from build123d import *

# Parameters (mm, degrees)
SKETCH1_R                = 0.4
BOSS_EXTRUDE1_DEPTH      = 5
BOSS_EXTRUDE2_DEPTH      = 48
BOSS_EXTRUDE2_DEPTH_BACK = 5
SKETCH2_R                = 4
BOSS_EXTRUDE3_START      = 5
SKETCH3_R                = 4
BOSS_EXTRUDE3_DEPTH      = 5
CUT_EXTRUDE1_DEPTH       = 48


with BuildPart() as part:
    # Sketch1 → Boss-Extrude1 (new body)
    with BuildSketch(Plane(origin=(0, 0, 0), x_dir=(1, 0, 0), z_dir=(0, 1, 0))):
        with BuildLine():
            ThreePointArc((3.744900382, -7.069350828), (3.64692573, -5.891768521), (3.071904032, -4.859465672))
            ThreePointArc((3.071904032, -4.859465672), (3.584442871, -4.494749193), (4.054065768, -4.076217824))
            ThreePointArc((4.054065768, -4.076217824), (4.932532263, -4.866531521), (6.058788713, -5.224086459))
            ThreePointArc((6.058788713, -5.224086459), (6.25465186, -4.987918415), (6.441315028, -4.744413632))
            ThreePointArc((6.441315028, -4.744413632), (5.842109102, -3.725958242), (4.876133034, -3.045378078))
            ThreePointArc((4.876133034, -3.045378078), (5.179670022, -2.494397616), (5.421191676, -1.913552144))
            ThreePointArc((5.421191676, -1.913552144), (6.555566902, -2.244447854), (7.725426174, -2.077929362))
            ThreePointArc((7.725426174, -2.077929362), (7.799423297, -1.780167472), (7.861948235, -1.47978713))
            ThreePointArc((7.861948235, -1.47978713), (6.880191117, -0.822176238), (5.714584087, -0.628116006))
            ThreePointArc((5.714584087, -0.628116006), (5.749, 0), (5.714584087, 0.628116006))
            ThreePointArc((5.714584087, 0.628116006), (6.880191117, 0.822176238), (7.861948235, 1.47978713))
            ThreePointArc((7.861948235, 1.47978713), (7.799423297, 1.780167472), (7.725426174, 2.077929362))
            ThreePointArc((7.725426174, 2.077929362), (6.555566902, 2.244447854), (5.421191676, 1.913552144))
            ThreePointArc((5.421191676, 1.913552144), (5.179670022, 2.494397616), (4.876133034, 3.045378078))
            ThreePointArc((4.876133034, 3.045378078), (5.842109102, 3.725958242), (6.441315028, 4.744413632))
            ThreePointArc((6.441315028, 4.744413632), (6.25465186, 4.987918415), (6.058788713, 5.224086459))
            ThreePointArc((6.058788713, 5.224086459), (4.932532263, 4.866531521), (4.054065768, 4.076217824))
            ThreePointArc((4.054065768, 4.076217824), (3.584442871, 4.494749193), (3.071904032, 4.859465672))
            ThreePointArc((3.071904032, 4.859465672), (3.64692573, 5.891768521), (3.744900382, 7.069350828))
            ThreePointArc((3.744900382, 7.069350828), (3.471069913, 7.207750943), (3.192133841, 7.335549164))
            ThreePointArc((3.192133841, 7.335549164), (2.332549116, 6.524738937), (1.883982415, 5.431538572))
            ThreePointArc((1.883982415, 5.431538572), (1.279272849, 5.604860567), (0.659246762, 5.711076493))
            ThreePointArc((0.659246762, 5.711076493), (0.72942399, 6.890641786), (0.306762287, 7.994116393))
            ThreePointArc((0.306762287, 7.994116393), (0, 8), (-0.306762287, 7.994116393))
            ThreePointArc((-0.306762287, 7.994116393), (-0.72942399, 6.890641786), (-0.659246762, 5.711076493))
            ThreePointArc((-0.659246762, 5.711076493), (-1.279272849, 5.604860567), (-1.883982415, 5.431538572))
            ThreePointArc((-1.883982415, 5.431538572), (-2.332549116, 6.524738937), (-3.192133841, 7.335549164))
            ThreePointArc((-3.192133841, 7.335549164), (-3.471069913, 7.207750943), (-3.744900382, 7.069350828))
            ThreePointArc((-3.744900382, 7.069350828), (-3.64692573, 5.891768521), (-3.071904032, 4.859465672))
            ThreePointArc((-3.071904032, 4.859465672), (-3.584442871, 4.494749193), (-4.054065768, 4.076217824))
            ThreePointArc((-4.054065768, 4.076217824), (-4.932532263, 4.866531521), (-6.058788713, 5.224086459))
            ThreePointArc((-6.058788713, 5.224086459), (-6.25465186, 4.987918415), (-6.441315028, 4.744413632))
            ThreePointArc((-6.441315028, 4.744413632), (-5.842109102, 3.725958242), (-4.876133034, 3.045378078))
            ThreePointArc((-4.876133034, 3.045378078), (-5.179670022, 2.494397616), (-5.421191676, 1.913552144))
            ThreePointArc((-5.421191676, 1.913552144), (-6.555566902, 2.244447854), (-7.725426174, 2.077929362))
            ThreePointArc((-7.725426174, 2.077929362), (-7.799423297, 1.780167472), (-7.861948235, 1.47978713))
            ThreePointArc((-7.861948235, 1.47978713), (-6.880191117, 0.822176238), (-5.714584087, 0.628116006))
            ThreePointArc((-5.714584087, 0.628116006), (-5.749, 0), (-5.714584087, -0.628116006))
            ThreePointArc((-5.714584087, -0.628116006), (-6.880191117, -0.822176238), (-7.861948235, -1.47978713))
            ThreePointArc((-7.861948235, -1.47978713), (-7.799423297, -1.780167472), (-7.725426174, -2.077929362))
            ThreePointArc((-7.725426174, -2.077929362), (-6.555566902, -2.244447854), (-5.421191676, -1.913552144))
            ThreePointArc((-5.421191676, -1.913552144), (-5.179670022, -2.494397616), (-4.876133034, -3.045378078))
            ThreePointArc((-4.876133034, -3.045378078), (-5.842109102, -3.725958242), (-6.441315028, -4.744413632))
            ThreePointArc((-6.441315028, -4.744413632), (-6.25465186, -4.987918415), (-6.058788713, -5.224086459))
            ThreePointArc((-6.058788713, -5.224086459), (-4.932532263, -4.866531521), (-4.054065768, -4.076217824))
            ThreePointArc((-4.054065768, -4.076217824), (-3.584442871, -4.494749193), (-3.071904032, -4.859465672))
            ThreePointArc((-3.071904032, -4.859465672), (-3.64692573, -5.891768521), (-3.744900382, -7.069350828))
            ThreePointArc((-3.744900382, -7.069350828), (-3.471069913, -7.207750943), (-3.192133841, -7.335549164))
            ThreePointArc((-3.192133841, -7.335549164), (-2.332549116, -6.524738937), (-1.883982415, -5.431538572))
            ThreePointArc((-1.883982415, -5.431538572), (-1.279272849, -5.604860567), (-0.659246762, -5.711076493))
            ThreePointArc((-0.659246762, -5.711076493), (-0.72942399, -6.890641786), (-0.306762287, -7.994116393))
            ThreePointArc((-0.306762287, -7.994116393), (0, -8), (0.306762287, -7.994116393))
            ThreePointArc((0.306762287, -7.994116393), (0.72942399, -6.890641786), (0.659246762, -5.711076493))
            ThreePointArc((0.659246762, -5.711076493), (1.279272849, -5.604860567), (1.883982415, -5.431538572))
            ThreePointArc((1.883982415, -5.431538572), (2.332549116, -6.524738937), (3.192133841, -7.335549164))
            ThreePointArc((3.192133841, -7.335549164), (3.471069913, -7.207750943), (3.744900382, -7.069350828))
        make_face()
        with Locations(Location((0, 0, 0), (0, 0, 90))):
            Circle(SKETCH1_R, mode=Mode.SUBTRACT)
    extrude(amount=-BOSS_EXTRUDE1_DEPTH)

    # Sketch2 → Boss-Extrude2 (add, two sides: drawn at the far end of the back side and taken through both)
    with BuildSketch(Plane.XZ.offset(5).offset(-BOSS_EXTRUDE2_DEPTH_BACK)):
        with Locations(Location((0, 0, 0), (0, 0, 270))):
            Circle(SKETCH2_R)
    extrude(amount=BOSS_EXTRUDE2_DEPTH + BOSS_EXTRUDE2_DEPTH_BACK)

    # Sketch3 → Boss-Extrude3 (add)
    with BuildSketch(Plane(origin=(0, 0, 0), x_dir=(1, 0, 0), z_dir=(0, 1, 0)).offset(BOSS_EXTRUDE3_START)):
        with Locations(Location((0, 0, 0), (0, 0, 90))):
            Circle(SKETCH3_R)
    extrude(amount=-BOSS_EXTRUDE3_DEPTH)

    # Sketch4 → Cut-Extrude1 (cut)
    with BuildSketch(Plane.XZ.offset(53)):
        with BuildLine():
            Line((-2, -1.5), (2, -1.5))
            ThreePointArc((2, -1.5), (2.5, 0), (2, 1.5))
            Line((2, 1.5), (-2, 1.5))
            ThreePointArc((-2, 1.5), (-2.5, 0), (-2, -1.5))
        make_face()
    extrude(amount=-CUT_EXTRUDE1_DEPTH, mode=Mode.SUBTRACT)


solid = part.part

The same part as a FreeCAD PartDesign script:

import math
import FreeCAD as App
import Part
import Sketcher

doc = App.newDocument("Part")
params = doc.addObject("Spreadsheet::Sheet", "Params")
for row, (alias, value) in enumerate([
    ("sketch1_radius", "8 mm"),
    ("sketch1_diameter", "0.8 mm"),
    ("sketch1_radius2", "2.8 mm"),
    ("pad1_length", "5 mm"),
    ("sketch2_diameter", "8 mm"),
    ("pad2_length", "48 mm"),
    ("pad2_length2", "5 mm"),
    ("sketch3_diameter", "8 mm"),
    ("pad3_length", "5 mm"),
    ("sketch4_radius", "2.5 mm"),
    ("sketch4_width", "4 mm"),
    ("pocket1_length", "48 mm"),
], start=1):
    params.set(f"A{row}", alias)
    params.set(f"B{row}", "=" + value)
    params.setAlias(f"B{row}", alias)

body = doc.addObject("PartDesign::Body", "Body")

# Sketch on XZ plane
sketch1 = doc.addObject("Sketcher::SketchObject", "Sketch")
body.addObject(sketch1)
sketch1.AttachmentSupport = (doc.XZ_Plane, [""])
sketch1.MapMode = "FlatFace"
sketch1.addGeometry([
    Part.ArcOfCircle(Part.Circle(App.Vector(0.97, 6.71, 0), App.Vector(0, 0, 1), 2.8), math.radians(-41), math.radians(7)),  # 0
    Part.ArcOfCircle(Part.Circle(App.Vector(0, 0, 0), App.Vector(0, 0, 1), 5.75), math.radians(45.16), math.radians(57.7)),  # 1
    Part.ArcOfCircle(Part.Circle(App.Vector(6.32, 2.44, 0), App.Vector(0, 0, 1), 2.8), math.radians(95), math.radians(144)),  # 2
    Part.ArcOfCircle(Part.Circle(App.Vector(0, 0, 0), App.Vector(0, 0, 1), 8), math.radians(36.37), math.radians(40.77)),  # 3
    Part.ArcOfCircle(Part.Circle(App.Vector(3.78, 5.62, 0), App.Vector(0, 0, 1), 2.8), math.radians(-67), math.radians(-18)),  # 4
    Part.ArcOfCircle(Part.Circle(App.Vector(0, 0, 0), App.Vector(0, 0, 1), 5.75), math.radians(19.44), math.radians(31.99)),  # 5
    Part.ArcOfCircle(Part.Circle(App.Vector(6.75, -0.55, 0), App.Vector(0, 0, 1), 2.8), math.radians(70), math.radians(118)),  # 6
    Part.ArcOfCircle(Part.Circle(App.Vector(0, 0, 0), App.Vector(0, 0, 1), 8), math.radians(10.66), math.radians(15.05)),  # 7
    Part.ArcOfCircle(Part.Circle(App.Vector(5.85, 3.42, 0), App.Vector(0, 0, 1), 2.8), math.radians(-93), math.radians(-44)),  # 8
    Part.ArcOfCircle(Part.Circle(App.Vector(0, 0, 0), App.Vector(0, 0, 1), 5.75), math.radians(-6.27), math.radians(6.27)),  # 9
    Part.ArcOfCircle(Part.Circle(App.Vector(5.85, -3.42, 0), App.Vector(0, 0, 1), 2.8), math.radians(44), math.radians(93)),  # 10
    Part.ArcOfCircle(Part.Circle(App.Vector(0, 0, 0), App.Vector(0, 0, 1), 8), math.radians(-15.05), math.radians(-10.66)),  # 11
    Part.ArcOfCircle(Part.Circle(App.Vector(6.75, 0.55, 0), App.Vector(0, 0, 1), 2.8), math.radians(-118), math.radians(-70)),  # 12
    Part.ArcOfCircle(Part.Circle(App.Vector(0, 0, 0), App.Vector(0, 0, 1), 5.75), math.radians(-31.99), math.radians(-19.44)),  # 13
    Part.ArcOfCircle(Part.Circle(App.Vector(3.78, -5.62, 0), App.Vector(0, 0, 1), 2.8), math.radians(18), math.radians(67)),  # 14
    Part.ArcOfCircle(Part.Circle(App.Vector(0, 0, 0), App.Vector(0, 0, 1), 8), math.radians(-40.77), math.radians(-36.37)),  # 15
    Part.ArcOfCircle(Part.Circle(App.Vector(6.32, -2.44, 0), App.Vector(0, 0, 1), 2.8), math.radians(-144), math.radians(-95)),  # 16
    Part.ArcOfCircle(Part.Circle(App.Vector(0, 0, 0), App.Vector(0, 0, 1), 5.75), math.radians(-57.7), math.radians(-45.16)),  # 17
    Part.ArcOfCircle(Part.Circle(App.Vector(0.97, -6.71, 0), App.Vector(0, 0, 1), 2.8), math.radians(-7), math.radians(41)),  # 18
    Part.ArcOfCircle(Part.Circle(App.Vector(0, 0, 0), App.Vector(0, 0, 1), 8), math.radians(-66.48), math.radians(-62.09)),  # 19
    Part.ArcOfCircle(Part.Circle(App.Vector(4.64, -4.94, 0), App.Vector(0, 0, 1), 2.8), math.radians(-170), math.radians(-121)),  # 20
    Part.ArcOfCircle(Part.Circle(App.Vector(0, 0, 0), App.Vector(0, 0, 1), 5.75), math.radians(-83.42), math.radians(-70.87)),  # 21
    Part.ArcOfCircle(Part.Circle(App.Vector(-2.04, -6.46, 0), App.Vector(0, 0, 1), 2.8), math.radians(-33), math.radians(16)),  # 22
    Part.ArcOfCircle(Part.Circle(App.Vector(0, 0, 0), App.Vector(0, 0, 1), 8), math.radians(-92.2), math.radians(-87.8)),  # 23
    Part.ArcOfCircle(Part.Circle(App.Vector(2.04, -6.46, 0), App.Vector(0, 0, 1), 2.8), math.radians(164), math.radians(213)),  # 24
    Part.ArcOfCircle(Part.Circle(App.Vector(0, 0, 0), App.Vector(0, 0, 1), 5.75), math.radians(-109.13), math.radians(-96.58)),  # 25
    Part.ArcOfCircle(Part.Circle(App.Vector(-4.64, -4.94, 0), App.Vector(0, 0, 1), 2.8), math.radians(-59), math.radians(-10)),  # 26
    Part.ArcOfCircle(Part.Circle(App.Vector(0, 0, 0), App.Vector(0, 0, 1), 8), math.radians(-117.91), math.radians(-113.52)),  # 27
    Part.ArcOfCircle(Part.Circle(App.Vector(-0.97, -6.71, 0), App.Vector(0, 0, 1), 2.8), math.radians(139), math.radians(187)),  # 28
    Part.ArcOfCircle(Part.Circle(App.Vector(0, 0, 0), App.Vector(0, 0, 1), 5.75), math.radians(-134.84), math.radians(-122.3)),  # 29
    Part.ArcOfCircle(Part.Circle(App.Vector(-6.32, -2.44, 0), App.Vector(0, 0, 1), 2.8), math.radians(-85), math.radians(-36)),  # 30
    Part.ArcOfCircle(Part.Circle(App.Vector(0, 0, 0), App.Vector(0, 0, 1), 8), math.radians(-143.63), math.radians(-139.23)),  # 31
    Part.ArcOfCircle(Part.Circle(App.Vector(-3.78, -5.62, 0), App.Vector(0, 0, 1), 2.8), math.radians(113), math.radians(162)),  # 32
    Part.ArcOfCircle(Part.Circle(App.Vector(0, 0, 0), App.Vector(0, 0, 1), 5.75), math.radians(-160.56), math.radians(-148.01)),  # 33
    Part.ArcOfCircle(Part.Circle(App.Vector(-6.75, 0.55, 0), App.Vector(0, 0, 1), 2.8), math.radians(-110), math.radians(-62)),  # 34
    Part.ArcOfCircle(Part.Circle(App.Vector(0, 0, 0), App.Vector(0, 0, 1), 8), math.radians(-169.34), math.radians(-164.95)),  # 35
    Part.ArcOfCircle(Part.Circle(App.Vector(-5.85, -3.42, 0), App.Vector(0, 0, 1), 2.8), math.radians(87), math.radians(136)),  # 36
    Part.ArcOfCircle(Part.Circle(App.Vector(0, 0, 0), App.Vector(0, 0, 1), 5.75), math.radians(173.73), math.radians(186.27)),  # 37
    Part.ArcOfCircle(Part.Circle(App.Vector(-5.85, 3.42, 0), App.Vector(0, 0, 1), 2.8), math.radians(-136), math.radians(-87)),  # 38
    Part.ArcOfCircle(Part.Circle(App.Vector(0, 0, 0), App.Vector(0, 0, 1), 8), math.radians(164.95), math.radians(169.34)),  # 39
    Part.ArcOfCircle(Part.Circle(App.Vector(-6.75, -0.55, 0), App.Vector(0, 0, 1), 2.8), math.radians(62), math.radians(110)),  # 40
    Part.ArcOfCircle(Part.Circle(App.Vector(0, 0, 0), App.Vector(0, 0, 1), 5.75), math.radians(148.01), math.radians(160.56)),  # 41
    Part.ArcOfCircle(Part.Circle(App.Vector(-3.78, 5.62, 0), App.Vector(0, 0, 1), 2.8), math.radians(-162), math.radians(-113)),  # 42
    Part.ArcOfCircle(Part.Circle(App.Vector(0, 0, 0), App.Vector(0, 0, 1), 8), math.radians(139.23), math.radians(143.63)),  # 43
    Part.ArcOfCircle(Part.Circle(App.Vector(-6.32, 2.44, 0), App.Vector(0, 0, 1), 2.8), math.radians(36), math.radians(85)),  # 44
    Part.ArcOfCircle(Part.Circle(App.Vector(0, 0, 0), App.Vector(0, 0, 1), 5.75), math.radians(122.3), math.radians(134.84)),  # 45
    Part.ArcOfCircle(Part.Circle(App.Vector(-0.97, 6.71, 0), App.Vector(0, 0, 1), 2.8), math.radians(173), math.radians(221)),  # 46
    Part.ArcOfCircle(Part.Circle(App.Vector(0, 0, 0), App.Vector(0, 0, 1), 8), math.radians(113.52), math.radians(117.91)),  # 47
    Part.ArcOfCircle(Part.Circle(App.Vector(-4.64, 4.94, 0), App.Vector(0, 0, 1), 2.8), math.radians(10), math.radians(59)),  # 48
    Part.ArcOfCircle(Part.Circle(App.Vector(0, 0, 0), App.Vector(0, 0, 1), 5.75), math.radians(96.58), math.radians(109.13)),  # 49
    Part.ArcOfCircle(Part.Circle(App.Vector(2.04, 6.46, 0), App.Vector(0, 0, 1), 2.8), math.radians(147), math.radians(196)),  # 50
    Part.ArcOfCircle(Part.Circle(App.Vector(0, 0, 0), App.Vector(0, 0, 1), 8), math.radians(87.8), math.radians(92.2)),  # 51
    Part.ArcOfCircle(Part.Circle(App.Vector(-2.04, 6.46, 0), App.Vector(0, 0, 1), 2.8), math.radians(-16), math.radians(33)),  # 52
    Part.ArcOfCircle(Part.Circle(App.Vector(0, 0, 0), App.Vector(0, 0, 1), 5.75), math.radians(70.87), math.radians(83.42)),  # 53
    Part.ArcOfCircle(Part.Circle(App.Vector(4.64, 4.94, 0), App.Vector(0, 0, 1), 2.8), math.radians(121), math.radians(170)),  # 54
    Part.ArcOfCircle(Part.Circle(App.Vector(0, 0, 0), App.Vector(0, 0, 1), 8), math.radians(62.09), math.radians(66.48)),  # 55
    Part.Circle(App.Vector(0, 0, 0), App.Vector(0, 0, 1), 0.4),  # 56
], False)
sketch1.addConstraint([
    Sketcher.Constraint("Coincident", 0, 1, 1, 2),
    Sketcher.Constraint("Coincident", 1, 1, 2, 2),
    Sketcher.Constraint("Coincident", 2, 1, 3, 2),
    Sketcher.Constraint("Coincident", 3, 1, 4, 2),
    Sketcher.Constraint("Coincident", 4, 1, 5, 2),
    Sketcher.Constraint("Coincident", 5, 1, 6, 2),
    Sketcher.Constraint("Coincident", 6, 1, 7, 2),
    Sketcher.Constraint("Coincident", 7, 1, 8, 2),
    Sketcher.Constraint("Coincident", 8, 1, 9, 2),
    Sketcher.Constraint("Coincident", 9, 1, 10, 2),
    Sketcher.Constraint("Coincident", 10, 1, 11, 2),
    Sketcher.Constraint("Coincident", 11, 1, 12, 2),
    Sketcher.Constraint("Coincident", 12, 1, 13, 2),
    Sketcher.Constraint("Coincident", 13, 1, 14, 2),
    Sketcher.Constraint("Coincident", 14, 1, 15, 2),
    Sketcher.Constraint("Coincident", 15, 1, 16, 2),
    Sketcher.Constraint("Coincident", 16, 1, 17, 2),
    Sketcher.Constraint("Coincident", 17, 1, 18, 2),
    Sketcher.Constraint("Coincident", 18, 1, 19, 2),
    Sketcher.Constraint("Coincident", 19, 1, 20, 2),
    Sketcher.Constraint("Coincident", 20, 1, 21, 2),
    Sketcher.Constraint("Coincident", 21, 1, 22, 2),
    Sketcher.Constraint("Coincident", 22, 1, 23, 2),
    Sketcher.Constraint("Coincident", 23, 1, 24, 2),
    Sketcher.Constraint("Coincident", 24, 1, 25, 2),
    Sketcher.Constraint("Coincident", 25, 1, 26, 2),
    Sketcher.Constraint("Coincident", 26, 1, 27, 2),
    Sketcher.Constraint("Coincident", 27, 1, 28, 2),
    Sketcher.Constraint("Coincident", 28, 1, 29, 2),
    Sketcher.Constraint("Coincident", 29, 1, 30, 2),
    Sketcher.Constraint("Coincident", 30, 1, 31, 2),
    Sketcher.Constraint("Coincident", 31, 1, 32, 2),
    Sketcher.Constraint("Coincident", 32, 1, 33, 2),
    Sketcher.Constraint("Coincident", 33, 1, 34, 2),
    Sketcher.Constraint("Coincident", 34, 1, 35, 2),
    Sketcher.Constraint("Coincident", 35, 1, 36, 2),
    Sketcher.Constraint("Coincident", 36, 1, 37, 2),
    Sketcher.Constraint("Coincident", 37, 1, 38, 2),
    Sketcher.Constraint("Coincident", 38, 1, 39, 2),
    Sketcher.Constraint("Coincident", 39, 1, 40, 2),
    Sketcher.Constraint("Coincident", 40, 1, 41, 2),
    Sketcher.Constraint("Coincident", 41, 1, 42, 2),
    Sketcher.Constraint("Coincident", 42, 1, 43, 2),
    Sketcher.Constraint("Coincident", 43, 1, 44, 2),
    Sketcher.Constraint("Coincident", 44, 1, 45, 2),
    Sketcher.Constraint("Coincident", 45, 1, 46, 2),
    Sketcher.Constraint("Coincident", 46, 1, 47, 2),
    Sketcher.Constraint("Coincident", 47, 1, 48, 2),
    Sketcher.Constraint("Coincident", 48, 1, 49, 2),
    Sketcher.Constraint("Coincident", 49, 1, 50, 2),
    Sketcher.Constraint("Coincident", 50, 1, 51, 2),
    Sketcher.Constraint("Coincident", 51, 1, 52, 2),
    Sketcher.Constraint("Coincident", 52, 1, 53, 2),
    Sketcher.Constraint("Coincident", 53, 1, 54, 2),
    Sketcher.Constraint("Coincident", 54, 1, 55, 2),
    Sketcher.Constraint("Coincident", 55, 1, 0, 2),
    Sketcher.Constraint("Coincident", 1, 3, -1, 1),
    Sketcher.Constraint("Coincident", 3, 3, -1, 1),
    Sketcher.Constraint("Coincident", 5, 3, -1, 1),
    Sketcher.Constraint("Coincident", 7, 3, -1, 1),
    Sketcher.Constraint("Coincident", 9, 3, -1, 1),
    Sketcher.Constraint("Coincident", 11, 3, -1, 1),
    Sketcher.Constraint("Coincident", 13, 3, -1, 1),
    Sketcher.Constraint("Coincident", 15, 3, -1, 1),
    Sketcher.Constraint("Coincident", 17, 3, -1, 1),
    Sketcher.Constraint("Coincident", 19, 3, -1, 1),
    Sketcher.Constraint("Coincident", 21, 3, -1, 1),
    Sketcher.Constraint("Coincident", 23, 3, -1, 1),
    Sketcher.Constraint("Coincident", 25, 3, -1, 1),
    Sketcher.Constraint("Coincident", 27, 3, -1, 1),
    Sketcher.Constraint("Coincident", 29, 3, -1, 1),
    Sketcher.Constraint("Coincident", 31, 3, -1, 1),
    Sketcher.Constraint("Coincident", 33, 3, -1, 1),
    Sketcher.Constraint("Coincident", 35, 3, -1, 1),
    Sketcher.Constraint("Coincident", 37, 3, -1, 1),
    Sketcher.Constraint("Coincident", 39, 3, -1, 1),
    Sketcher.Constraint("Coincident", 41, 3, -1, 1),
    Sketcher.Constraint("Coincident", 43, 3, -1, 1),
    Sketcher.Constraint("Coincident", 45, 3, -1, 1),
    Sketcher.Constraint("Coincident", 47, 3, -1, 1),
    Sketcher.Constraint("Coincident", 49, 3, -1, 1),
    Sketcher.Constraint("Coincident", 51, 3, -1, 1),
    Sketcher.Constraint("Coincident", 53, 3, -1, 1),
    Sketcher.Constraint("Coincident", 55, 3, -1, 1),
    Sketcher.Constraint("Coincident", 56, 3, -1, 1),
    Sketcher.Constraint("Equal", 0, 2),
    Sketcher.Constraint("Equal", 2, 4),
    Sketcher.Constraint("Equal", 1, 5),
    Sketcher.Constraint("Equal", 4, 6),
    Sketcher.Constraint("Equal", 3, 7),
    Sketcher.Constraint("Equal", 6, 8),
    Sketcher.Constraint("Equal", 5, 9),
    Sketcher.Constraint("Equal", 8, 10),
    Sketcher.Constraint("Equal", 7, 11),
    Sketcher.Constraint("Equal", 10, 12),
    Sketcher.Constraint("Equal", 9, 13),
    Sketcher.Constraint("Equal", 12, 14),
    Sketcher.Constraint("Equal", 11, 15),
    Sketcher.Constraint("Equal", 14, 16),
    Sketcher.Constraint("Equal", 13, 17),
    Sketcher.Constraint("Equal", 16, 18),
    Sketcher.Constraint("Equal", 15, 19),
    Sketcher.Constraint("Equal", 18, 20),
    Sketcher.Constraint("Equal", 17, 21),
    Sketcher.Constraint("Equal", 20, 22),
    Sketcher.Constraint("Equal", 19, 23),
    Sketcher.Constraint("Equal", 22, 24),
    Sketcher.Constraint("Equal", 21, 25),
    Sketcher.Constraint("Equal", 24, 26),
    Sketcher.Constraint("Equal", 23, 27),
    Sketcher.Constraint("Equal", 26, 28),
    Sketcher.Constraint("Equal", 25, 29),
    Sketcher.Constraint("Equal", 28, 30),
    Sketcher.Constraint("Equal", 27, 31),
    Sketcher.Constraint("Equal", 30, 32),
    Sketcher.Constraint("Equal", 29, 33),
    Sketcher.Constraint("Equal", 32, 34),
    Sketcher.Constraint("Equal", 31, 35),
    Sketcher.Constraint("Equal", 34, 36),
    Sketcher.Constraint("Equal", 33, 37),
    Sketcher.Constraint("Equal", 36, 38),
    Sketcher.Constraint("Equal", 35, 39),
    Sketcher.Constraint("Equal", 38, 40),
    Sketcher.Constraint("Equal", 37, 41),
    Sketcher.Constraint("Equal", 40, 42),
    Sketcher.Constraint("Equal", 39, 43),
    Sketcher.Constraint("Equal", 42, 44),
    Sketcher.Constraint("Equal", 41, 45),
    Sketcher.Constraint("Equal", 44, 46),
    Sketcher.Constraint("Equal", 43, 47),
    Sketcher.Constraint("Equal", 46, 48),
    Sketcher.Constraint("Equal", 45, 49),
    Sketcher.Constraint("Equal", 48, 50),
    Sketcher.Constraint("Equal", 47, 51),
    Sketcher.Constraint("Equal", 50, 52),
    Sketcher.Constraint("Equal", 49, 53),
    Sketcher.Constraint("Equal", 52, 54),
    Sketcher.Constraint("Equal", 51, 55),
    Sketcher.Constraint("Symmetric", 0, 3, 28, 3, -1, 1),
    Sketcher.Constraint("Symmetric", 2, 3, 30, 3, -1, 1),
    Sketcher.Constraint("Symmetric", 4, 3, 32, 3, -1, 1),
    Sketcher.Constraint("Symmetric", 6, 3, 34, 3, -1, 1),
    Sketcher.Constraint("Symmetric", 8, 3, 36, 3, -1, 1),
    Sketcher.Constraint("Symmetric", 10, 3, 38, 3, -1, 1),
    Sketcher.Constraint("Symmetric", 12, 3, 40, 3, -1, 1),
    Sketcher.Constraint("Symmetric", 14, 3, 42, 3, -1, 1),
    Sketcher.Constraint("Symmetric", 16, 3, 44, 3, -1, 1),
    Sketcher.Constraint("Symmetric", 18, 3, 46, 3, -1, 1),
    Sketcher.Constraint("Symmetric", 20, 3, 48, 3, -1, 1),
    Sketcher.Constraint("Symmetric", 22, 3, 50, 3, -1, 1),
    Sketcher.Constraint("Symmetric", 24, 3, 52, 3, -1, 1),
    Sketcher.Constraint("Symmetric", 26, 3, 54, 3, -1, 1),
    Sketcher.Constraint("Symmetric", 22, 3, 24, 3, -2),
    Sketcher.Constraint("Symmetric", 20, 3, 26, 3, -2),
    Sketcher.Constraint("Symmetric", 18, 3, 28, 3, -2),
    Sketcher.Constraint("Symmetric", 16, 3, 30, 3, -2),
    Sketcher.Constraint("Symmetric", 14, 3, 32, 3, -2),
    Sketcher.Constraint("Symmetric", 12, 3, 34, 3, -2),
    Sketcher.Constraint("Symmetric", 10, 3, 36, 3, -2),
    Sketcher.Constraint("Radius", 3, 8.0),
    Sketcher.Constraint("Diameter", 56, 0.8),
    Sketcher.Constraint("Radius", 0, 2.8),
    Sketcher.Constraint("Radius", 1, 5.749),
    Sketcher.Constraint("DistanceX", -1, 1, 18, 1, 3.7449),
    Sketcher.Constraint("DistanceX", -1, 1, 0, 3, 0.968382),
    Sketcher.Constraint("DistanceY", -1, 1, 2, 3, 2.436659),
    Sketcher.Constraint("DistanceY", -1, 1, 8, 3, 3.42494),
    Sketcher.Constraint("DistanceX", -1, 1, 20, 3, 4.640351),
    Sketcher.Constraint("DistanceX", 22, 3, -1, 1, 2.037789),
    Sketcher.Constraint("DistanceX", -1, 1, 2, 1, 6.058789),
    Sketcher.Constraint("DistanceY", -1, 1, 4, 1, 3.045378),
    Sketcher.Constraint("DistanceX", -1, 1, 5, 1, 5.421192),
    Sketcher.Constraint("DistanceY", -1, 1, 6, 1, 2.077929),
    Sketcher.Constraint("DistanceX", -1, 1, 7, 1, 7.861948),
    Sketcher.Constraint("DistanceY", 19, 1, -1, 1, 7.335549),
    Sketcher.Constraint("DistanceX", -1, 1, 4, 3, 3.782752),
    Sketcher.Constraint("DistanceY", 22, 3, -1, 1, 6.463405),
])
sketch1.setExpression("Constraints[159]", "Params.sketch1_radius")
sketch1.setExpression("Constraints[160]", "Params.sketch1_diameter")
sketch1.setExpression("Constraints[161]", "Params.sketch1_radius2")
pad1 = doc.addObject("PartDesign::Pad", "Pad")
body.addObject(pad1)
pad1.Profile = sketch1
pad1.setExpression("Length", "Params.pad1_length")

# Sketch on XZ plane
sketch2 = doc.addObject("Sketcher::SketchObject", "Sketch001")
body.addObject(sketch2)
sketch2.AttachmentSupport = (doc.XZ_Plane, [""])
sketch2.MapMode = "FlatFace"
sketch2.AttachmentOffset = App.Placement(App.Vector(0, 0, 5), App.Rotation())
sketch2.addGeometry(Part.Circle(App.Vector(0, 0, 0), App.Vector(0, 0, 1), 4), False)
sketch2.addConstraint([
    Sketcher.Constraint("Coincident", 0, 3, -1, 1),
    Sketcher.Constraint("Diameter", 0, 8.0),
])
sketch2.setExpression("Constraints[1]", "Params.sketch2_diameter")
pad2 = doc.addObject("PartDesign::Pad", "Pad001")
body.addObject(pad2)
pad2.Profile = sketch2
pad2.Type = "TwoLengths"
pad2.setExpression("Length", "Params.pad2_length")
pad2.setExpression("Length2", "Params.pad2_length2")

# Sketch on XZ plane
sketch3 = doc.addObject("Sketcher::SketchObject", "Sketch002")
body.addObject(sketch3)
sketch3.AttachmentSupport = (doc.XZ_Plane, [""])
sketch3.MapMode = "FlatFace"
sketch3.AttachmentOffset = App.Placement(App.Vector(0, 0, -5), App.Rotation())
sketch3.addGeometry(Part.Circle(App.Vector(0, 0, 0), App.Vector(0, 0, 1), 4), False)
sketch3.addConstraint([
    Sketcher.Constraint("Coincident", 0, 3, -1, 1),
    Sketcher.Constraint("Diameter", 0, 8.0),
])
sketch3.setExpression("Constraints[1]", "Params.sketch3_diameter")
pad3 = doc.addObject("PartDesign::Pad", "Pad002")
body.addObject(pad3)
pad3.Profile = sketch3
pad3.setExpression("Length", "Params.pad3_length")

# Sketch on XZ plane
sketch4 = doc.addObject("Sketcher::SketchObject", "Sketch003")
body.addObject(sketch4)
sketch4.AttachmentSupport = (doc.XZ_Plane, [""])
sketch4.MapMode = "FlatFace"
sketch4.AttachmentOffset = App.Placement(App.Vector(0, 0, 53), App.Rotation())
sketch4.addGeometry([
    Part.LineSegment(App.Vector(-2, -1.5, 0), App.Vector(2, -1.5, 0)),
    Part.ArcOfCircle(Part.Circle(App.Vector(0, 0, 0), App.Vector(0, 0, 1), 2.5), math.radians(-37), math.radians(37)),
    Part.LineSegment(App.Vector(2, 1.5, 0), App.Vector(-2, 1.5, 0)),
    Part.ArcOfCircle(Part.Circle(App.Vector(0, 0, 0), App.Vector(0, 0, 1), 2.5), math.radians(143), math.radians(217)),
], False)
sketch4.addConstraint([
    Sketcher.Constraint("Coincident", 0, 2, 1, 1),
    Sketcher.Constraint("Coincident", 1, 2, 2, 1),
    Sketcher.Constraint("Coincident", 2, 2, 3, 1),
    Sketcher.Constraint("Coincident", 3, 2, 0, 1),
    Sketcher.Constraint("Horizontal", 0),
    Sketcher.Constraint("Horizontal", 2),
    Sketcher.Constraint("Coincident", 1, 3, -1, 1),
    Sketcher.Constraint("Coincident", 3, 3, -1, 1),
    Sketcher.Constraint("Equal", 1, 3),
    Sketcher.Constraint("Vertical", 0, 2, 1, 2),
    Sketcher.Constraint("Radius", 1, 2.5),
    Sketcher.Constraint("DistanceX", 0, 1, 0, 2, 4.0),
])
sketch4.setExpression("Constraints[10]", "Params.sketch4_radius")
sketch4.setExpression("Constraints[11]", "Params.sketch4_width")
pocket1 = doc.addObject("PartDesign::Pocket", "Pocket")
body.addObject(pocket1)
pocket1.Profile = sketch4
pocket1.setExpression("Length", "Params.pocket1_length")

doc.recompute()
